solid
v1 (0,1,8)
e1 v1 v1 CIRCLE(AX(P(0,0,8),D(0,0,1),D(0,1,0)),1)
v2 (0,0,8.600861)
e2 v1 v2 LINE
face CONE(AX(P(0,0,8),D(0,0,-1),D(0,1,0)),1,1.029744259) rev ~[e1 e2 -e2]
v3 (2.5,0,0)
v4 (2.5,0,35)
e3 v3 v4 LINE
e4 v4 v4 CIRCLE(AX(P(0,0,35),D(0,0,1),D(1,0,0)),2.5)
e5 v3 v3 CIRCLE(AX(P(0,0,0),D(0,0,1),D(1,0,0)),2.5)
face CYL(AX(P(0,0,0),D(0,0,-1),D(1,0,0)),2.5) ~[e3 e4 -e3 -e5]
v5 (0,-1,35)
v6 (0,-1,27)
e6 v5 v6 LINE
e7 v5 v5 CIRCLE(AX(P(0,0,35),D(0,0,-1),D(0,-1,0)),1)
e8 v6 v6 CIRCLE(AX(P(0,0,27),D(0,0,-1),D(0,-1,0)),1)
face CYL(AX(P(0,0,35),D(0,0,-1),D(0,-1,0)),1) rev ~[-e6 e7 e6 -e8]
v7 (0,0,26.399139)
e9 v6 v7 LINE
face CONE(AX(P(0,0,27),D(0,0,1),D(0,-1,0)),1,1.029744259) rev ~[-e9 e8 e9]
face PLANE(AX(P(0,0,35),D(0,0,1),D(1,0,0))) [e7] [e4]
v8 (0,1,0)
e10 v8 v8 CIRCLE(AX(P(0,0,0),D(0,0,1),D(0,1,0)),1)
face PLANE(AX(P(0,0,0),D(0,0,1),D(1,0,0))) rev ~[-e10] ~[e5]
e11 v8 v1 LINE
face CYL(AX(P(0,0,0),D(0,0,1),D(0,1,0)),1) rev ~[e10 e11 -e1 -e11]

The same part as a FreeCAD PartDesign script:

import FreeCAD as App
import Part
import Sketcher

V = App.Vector

doc = App.newDocument("Part")
body = doc.addObject("PartDesign::Body", "Body")

# Sketch on XY plane
sketch1 = doc.addObject("Sketcher::SketchObject", "Sketch")
body.addObject(sketch1)
sketch1.AttachmentSupport = (doc.XY_Plane, [""])
sketch1.MapMode = "FlatFace"
sketch1.addGeometry(Part.Circle(V(0, 0, 0), V(0, 0, 1), 2.5), False)
sketch1.addConstraint([
    Sketcher.Constraint("Coincident", 0, 3, -1, 1),
    Sketcher.Constraint("Diameter", 0, 5.0),
])
pad1 = doc.addObject("PartDesign::Pad", "Pad")
body.addObject(pad1)
pad1.Profile = sketch1
pad1.Length = 35

# Sketch on XY plane
sketch2 = doc.addObject("Sketcher::SketchObject", "Sketch001")
body.addObject(sketch2)
sketch2.AttachmentSupport = (doc.XY_Plane, [""])
sketch2.MapMode = "FlatFace"
sketch2.addGeometry(Part.Circle(V(0, 0, 0), V(0, 0, 1), 1), False)
sketch2.addConstraint([
    Sketcher.Constraint("Coincident", 0, 3, -1, 1),
    Sketcher.Constraint("Diameter", 0, 2.0),
])
doc.recompute()
hole = doc.addObject("PartDesign::Hole", "Hole")
body.addObject(hole)
hole.Profile = sketch2
hole.ThreadType = "None"
hole.Diameter = 2
hole.DepthType = "Dimension"
hole.Depth = 8
hole.DrillPoint = "Angled"
hole.DrillPointAngle = 118
hole.Reversed = True

# Sketch on XY plane
sketch3 = doc.addObject("Sketcher::SketchObject", "Sketch002")
body.addObject(sketch3)
sketch3.AttachmentSupport = (doc.XY_Plane, [""])
sketch3.MapMode = "FlatFace"
sketch3.AttachmentOffset = App.Placement(V(0, 0, 35), App.Rotation())
sketch3.addGeometry(Part.Circle(V(0, 0, 0), V(0, 0, 1), 1), False)
sketch3.addConstraint([
    Sketcher.Constraint("Coincident", 0, 3, -1, 1),
    Sketcher.Constraint("Diameter", 0, 2.0),
])
doc.recompute()
hole2 = doc.addObject("PartDesign::Hole", "Hole001")
body.addObject(hole2)
hole2.Profile = sketch3
hole2.ThreadType = "None"
hole2.Diameter = 2
hole2.DepthType = "Dimension"
hole2.Depth = 8
hole2.DrillPoint = "Angled"
hole2.DrillPointAngle = 118

doc.recompute()
